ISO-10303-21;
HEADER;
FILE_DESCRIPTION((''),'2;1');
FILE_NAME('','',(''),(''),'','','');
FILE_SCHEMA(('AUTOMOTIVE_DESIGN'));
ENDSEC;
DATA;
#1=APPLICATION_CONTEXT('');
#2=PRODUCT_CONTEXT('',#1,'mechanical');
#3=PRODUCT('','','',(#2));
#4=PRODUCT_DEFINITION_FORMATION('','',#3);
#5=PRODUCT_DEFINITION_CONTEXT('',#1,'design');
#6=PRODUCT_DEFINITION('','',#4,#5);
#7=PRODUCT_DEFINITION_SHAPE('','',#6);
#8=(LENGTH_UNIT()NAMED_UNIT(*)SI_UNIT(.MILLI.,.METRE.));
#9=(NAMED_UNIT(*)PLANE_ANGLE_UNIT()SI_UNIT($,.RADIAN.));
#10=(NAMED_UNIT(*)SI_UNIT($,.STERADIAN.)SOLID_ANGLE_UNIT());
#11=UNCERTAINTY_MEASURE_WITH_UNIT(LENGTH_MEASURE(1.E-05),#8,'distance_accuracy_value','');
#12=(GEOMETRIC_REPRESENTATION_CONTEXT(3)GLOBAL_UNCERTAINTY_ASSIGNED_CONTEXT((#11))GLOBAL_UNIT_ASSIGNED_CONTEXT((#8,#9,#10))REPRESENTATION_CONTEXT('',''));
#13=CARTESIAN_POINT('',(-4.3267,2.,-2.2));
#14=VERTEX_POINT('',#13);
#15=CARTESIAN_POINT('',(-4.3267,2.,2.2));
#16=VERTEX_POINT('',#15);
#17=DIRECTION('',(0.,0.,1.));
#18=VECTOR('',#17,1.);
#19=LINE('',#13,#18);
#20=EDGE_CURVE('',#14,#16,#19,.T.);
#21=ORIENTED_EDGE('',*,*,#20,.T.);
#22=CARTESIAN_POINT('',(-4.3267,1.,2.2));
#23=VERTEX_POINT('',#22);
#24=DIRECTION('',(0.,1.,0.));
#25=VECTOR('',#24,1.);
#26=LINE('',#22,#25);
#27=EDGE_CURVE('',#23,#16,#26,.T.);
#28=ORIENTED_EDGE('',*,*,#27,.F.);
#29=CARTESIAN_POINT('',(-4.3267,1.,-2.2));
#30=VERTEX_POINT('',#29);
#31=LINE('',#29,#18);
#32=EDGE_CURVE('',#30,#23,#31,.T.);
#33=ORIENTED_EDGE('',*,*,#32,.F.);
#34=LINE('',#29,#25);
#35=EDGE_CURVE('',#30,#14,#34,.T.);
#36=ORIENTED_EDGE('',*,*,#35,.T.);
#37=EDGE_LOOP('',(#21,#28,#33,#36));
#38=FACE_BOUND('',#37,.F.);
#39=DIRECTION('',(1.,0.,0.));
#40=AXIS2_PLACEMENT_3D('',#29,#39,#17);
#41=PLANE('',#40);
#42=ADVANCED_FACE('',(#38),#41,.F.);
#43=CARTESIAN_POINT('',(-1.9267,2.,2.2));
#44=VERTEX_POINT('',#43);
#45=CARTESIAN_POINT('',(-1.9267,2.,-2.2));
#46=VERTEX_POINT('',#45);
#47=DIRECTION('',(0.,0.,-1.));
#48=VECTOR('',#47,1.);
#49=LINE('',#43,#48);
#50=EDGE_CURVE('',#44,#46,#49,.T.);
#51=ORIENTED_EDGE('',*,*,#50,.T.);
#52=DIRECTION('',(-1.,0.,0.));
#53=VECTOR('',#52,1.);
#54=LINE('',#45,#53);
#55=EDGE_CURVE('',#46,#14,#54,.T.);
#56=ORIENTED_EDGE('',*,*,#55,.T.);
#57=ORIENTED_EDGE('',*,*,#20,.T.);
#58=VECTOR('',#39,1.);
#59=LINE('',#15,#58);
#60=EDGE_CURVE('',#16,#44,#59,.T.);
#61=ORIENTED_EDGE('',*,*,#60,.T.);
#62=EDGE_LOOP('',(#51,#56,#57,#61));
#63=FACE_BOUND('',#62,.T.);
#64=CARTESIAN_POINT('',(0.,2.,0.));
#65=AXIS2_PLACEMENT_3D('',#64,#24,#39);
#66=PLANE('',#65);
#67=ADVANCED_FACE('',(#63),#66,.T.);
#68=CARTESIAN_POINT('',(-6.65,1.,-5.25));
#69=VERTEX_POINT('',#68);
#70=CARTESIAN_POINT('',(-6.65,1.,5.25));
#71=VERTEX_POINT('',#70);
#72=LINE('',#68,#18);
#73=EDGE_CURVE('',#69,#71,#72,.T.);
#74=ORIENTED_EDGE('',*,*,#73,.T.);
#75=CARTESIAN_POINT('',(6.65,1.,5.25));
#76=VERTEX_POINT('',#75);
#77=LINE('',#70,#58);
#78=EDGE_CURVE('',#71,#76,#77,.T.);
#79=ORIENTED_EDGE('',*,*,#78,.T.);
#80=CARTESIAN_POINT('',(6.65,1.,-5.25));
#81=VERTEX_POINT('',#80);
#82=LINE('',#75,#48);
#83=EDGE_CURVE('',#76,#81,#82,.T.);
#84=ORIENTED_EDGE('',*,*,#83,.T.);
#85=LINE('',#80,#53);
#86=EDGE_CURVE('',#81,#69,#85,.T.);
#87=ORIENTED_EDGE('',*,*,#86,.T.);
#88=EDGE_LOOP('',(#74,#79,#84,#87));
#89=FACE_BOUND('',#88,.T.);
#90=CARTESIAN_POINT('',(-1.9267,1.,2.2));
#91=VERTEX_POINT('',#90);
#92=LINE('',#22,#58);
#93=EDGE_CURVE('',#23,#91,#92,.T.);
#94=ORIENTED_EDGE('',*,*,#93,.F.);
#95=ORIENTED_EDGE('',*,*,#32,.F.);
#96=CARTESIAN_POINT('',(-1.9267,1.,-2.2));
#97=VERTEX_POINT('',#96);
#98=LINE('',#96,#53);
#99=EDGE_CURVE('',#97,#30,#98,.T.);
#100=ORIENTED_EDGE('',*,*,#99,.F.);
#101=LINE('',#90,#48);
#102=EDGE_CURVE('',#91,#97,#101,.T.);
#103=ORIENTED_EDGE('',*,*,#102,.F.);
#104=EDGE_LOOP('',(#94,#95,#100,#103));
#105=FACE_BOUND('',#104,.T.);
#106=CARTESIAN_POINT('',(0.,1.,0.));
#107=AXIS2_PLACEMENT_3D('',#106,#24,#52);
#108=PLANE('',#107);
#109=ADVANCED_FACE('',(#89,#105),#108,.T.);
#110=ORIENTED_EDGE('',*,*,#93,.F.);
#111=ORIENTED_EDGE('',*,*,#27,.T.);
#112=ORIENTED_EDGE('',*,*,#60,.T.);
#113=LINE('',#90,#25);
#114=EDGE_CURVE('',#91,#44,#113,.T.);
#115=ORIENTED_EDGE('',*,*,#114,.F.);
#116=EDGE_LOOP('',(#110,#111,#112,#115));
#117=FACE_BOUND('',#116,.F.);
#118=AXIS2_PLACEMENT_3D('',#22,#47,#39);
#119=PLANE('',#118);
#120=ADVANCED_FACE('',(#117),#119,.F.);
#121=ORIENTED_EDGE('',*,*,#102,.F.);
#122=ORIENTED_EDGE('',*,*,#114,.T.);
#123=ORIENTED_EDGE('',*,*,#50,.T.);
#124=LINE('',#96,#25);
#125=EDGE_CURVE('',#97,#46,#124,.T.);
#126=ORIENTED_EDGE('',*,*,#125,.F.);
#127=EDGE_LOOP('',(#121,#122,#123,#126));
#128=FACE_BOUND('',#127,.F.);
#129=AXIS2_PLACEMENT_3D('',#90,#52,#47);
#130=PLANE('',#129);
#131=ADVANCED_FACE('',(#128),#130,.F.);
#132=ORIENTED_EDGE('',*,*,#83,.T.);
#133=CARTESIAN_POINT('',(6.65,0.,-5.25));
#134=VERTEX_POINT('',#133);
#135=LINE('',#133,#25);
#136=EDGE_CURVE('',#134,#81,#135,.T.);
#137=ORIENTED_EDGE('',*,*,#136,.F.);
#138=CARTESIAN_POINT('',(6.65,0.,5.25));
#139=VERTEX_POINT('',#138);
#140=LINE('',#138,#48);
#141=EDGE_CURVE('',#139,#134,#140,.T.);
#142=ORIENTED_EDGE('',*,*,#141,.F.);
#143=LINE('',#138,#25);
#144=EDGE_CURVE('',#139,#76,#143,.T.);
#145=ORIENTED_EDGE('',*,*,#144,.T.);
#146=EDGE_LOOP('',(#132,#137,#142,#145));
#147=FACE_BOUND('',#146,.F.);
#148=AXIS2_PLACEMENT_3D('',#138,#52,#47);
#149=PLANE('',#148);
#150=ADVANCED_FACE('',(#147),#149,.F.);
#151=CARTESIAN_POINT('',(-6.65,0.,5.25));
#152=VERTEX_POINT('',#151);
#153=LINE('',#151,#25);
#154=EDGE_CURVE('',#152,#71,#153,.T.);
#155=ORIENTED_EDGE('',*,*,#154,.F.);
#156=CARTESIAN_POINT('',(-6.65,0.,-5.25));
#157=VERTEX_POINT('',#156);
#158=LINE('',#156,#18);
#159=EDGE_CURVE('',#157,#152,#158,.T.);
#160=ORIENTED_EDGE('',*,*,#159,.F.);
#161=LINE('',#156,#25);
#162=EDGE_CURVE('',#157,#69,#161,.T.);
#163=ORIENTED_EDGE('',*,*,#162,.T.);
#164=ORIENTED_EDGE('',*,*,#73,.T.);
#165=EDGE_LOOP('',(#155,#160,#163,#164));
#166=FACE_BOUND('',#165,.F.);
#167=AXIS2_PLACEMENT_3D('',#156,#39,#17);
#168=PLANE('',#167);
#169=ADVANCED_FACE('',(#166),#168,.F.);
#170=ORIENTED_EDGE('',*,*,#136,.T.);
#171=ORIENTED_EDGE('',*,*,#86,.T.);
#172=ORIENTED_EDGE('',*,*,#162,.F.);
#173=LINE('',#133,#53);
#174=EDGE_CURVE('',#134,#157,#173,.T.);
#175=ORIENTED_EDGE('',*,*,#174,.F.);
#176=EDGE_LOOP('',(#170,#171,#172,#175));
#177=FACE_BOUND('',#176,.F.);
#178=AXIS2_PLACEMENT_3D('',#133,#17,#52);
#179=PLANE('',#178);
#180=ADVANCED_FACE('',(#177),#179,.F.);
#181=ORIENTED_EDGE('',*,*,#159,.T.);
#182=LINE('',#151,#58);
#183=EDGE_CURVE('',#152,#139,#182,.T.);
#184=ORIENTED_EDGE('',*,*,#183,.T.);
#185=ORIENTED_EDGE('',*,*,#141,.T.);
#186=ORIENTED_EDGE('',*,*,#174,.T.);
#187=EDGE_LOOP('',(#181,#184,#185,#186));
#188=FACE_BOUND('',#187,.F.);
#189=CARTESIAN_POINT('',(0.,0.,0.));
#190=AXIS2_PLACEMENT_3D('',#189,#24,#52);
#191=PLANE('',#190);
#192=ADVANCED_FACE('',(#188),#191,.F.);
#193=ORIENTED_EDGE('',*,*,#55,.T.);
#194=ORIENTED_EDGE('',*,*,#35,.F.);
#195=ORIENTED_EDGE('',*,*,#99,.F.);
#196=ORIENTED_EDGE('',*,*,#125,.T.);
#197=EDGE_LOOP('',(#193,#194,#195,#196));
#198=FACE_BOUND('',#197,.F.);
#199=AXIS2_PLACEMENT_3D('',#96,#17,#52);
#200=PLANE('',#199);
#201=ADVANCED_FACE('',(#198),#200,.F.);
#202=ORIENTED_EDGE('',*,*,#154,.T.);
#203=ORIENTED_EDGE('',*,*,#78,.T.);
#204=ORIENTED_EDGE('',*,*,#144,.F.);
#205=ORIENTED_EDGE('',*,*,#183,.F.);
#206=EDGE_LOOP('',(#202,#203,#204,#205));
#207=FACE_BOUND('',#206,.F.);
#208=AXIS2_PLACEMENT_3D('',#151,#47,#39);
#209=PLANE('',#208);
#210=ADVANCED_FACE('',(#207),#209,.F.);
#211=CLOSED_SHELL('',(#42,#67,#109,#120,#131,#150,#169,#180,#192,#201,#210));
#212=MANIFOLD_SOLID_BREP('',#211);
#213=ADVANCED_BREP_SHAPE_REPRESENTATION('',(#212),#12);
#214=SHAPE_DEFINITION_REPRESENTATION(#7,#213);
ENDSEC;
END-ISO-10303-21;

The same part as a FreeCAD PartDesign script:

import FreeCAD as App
import Part
import Sketcher

V = App.Vector


def add_polygon(sketch, points):
    """Adds a closed chain of lines whose ends are joined by coincident constraints."""
    first, n = sketch.GeometryCount, len(points)
    for a, b in zip(points, points[1:] + points[:1]):
        sketch.addGeometry(Part.LineSegment(App.Vector(*a, 0), App.Vector(*b, 0)), False)
    for i in range(n):
        sketch.addConstraint(Sketcher.Constraint("Coincident", first + i, 2, first + (i + 1) % n, 1))

doc = App.newDocument("Part")
body = doc.addObject("PartDesign::Body", "Body")

sketch1 = doc.addObject("Sketcher::SketchObject", "Sketch")
body.addObject(sketch1)
sketch1.AttachmentSupport = (doc.XZ_Plane, [""])
sketch1.MapMode = "FlatFace"
add_polygon(sketch1, [(-6.65, -5.25), (-6.65, 5.25), (6.65, 5.25), (6.65, -5.25)])
sketch1.addConstraint(Sketcher.Constraint("Vertical", 0))
sketch1.addConstraint(Sketcher.Constraint("Horizontal", 1))
sketch1.addConstraint(Sketcher.Constraint("Vertical", 2))
sketch1.addConstraint(Sketcher.Constraint("Horizontal", 3))
sketch1.addConstraint(Sketcher.Constraint("Symmetric", 0, 2, 2, 2, -1, 1))
sketch1.addConstraint(Sketcher.Constraint("DistanceX", 1, 1, 1, 2, 13.3))
sketch1.addConstraint(Sketcher.Constraint("DistanceY", 0, 1, 0, 2, 10.5))
pad1 = doc.addObject("PartDesign::Pad", "Pad")
body.addObject(pad1)
pad1.Profile = sketch1
pad1.Length = 1
pad1.Reversed = True

sketch2 = doc.addObject("Sketcher::SketchObject", "Sketch001")
body.addObject(sketch2)
sketch2.AttachmentSupport = (doc.XZ_Plane, [""])
sketch2.MapMode = "FlatFace"
sketch2.AttachmentOffset = App.Placement(V(0, 0, -1), App.Rotation())
add_polygon(sketch2, [(-4.3267, -2.2), (-4.3267, 2.2), (-1.9267, 2.2), (-1.9267, -2.2)])
sketch2.addConstraint(Sketcher.Constraint("Vertical", 0))
sketch2.addConstraint(Sketcher.Constraint("Horizontal", 1))
sketch2.addConstraint(Sketcher.Constraint("Vertical", 2))
sketch2.addConstraint(Sketcher.Constraint("Horizontal", 3))
sketch2.addConstraint(Sketcher.Constraint("DistanceX", 1, 1, 1, 2, 2.4))
sketch2.addConstraint(Sketcher.Constraint("DistanceY", 0, 1, 0, 2, 4.4))
sketch2.addConstraint(Sketcher.Constraint("DistanceY", -1, 1, 0, 2, 2.2))
sketch2.addConstraint(Sketcher.Constraint("DistanceX", 0, 2, -1, 1, 4.3267))
pad2 = doc.addObject("PartDesign::Pad", "Pad001")
body.addObject(pad2)
pad2.Profile = sketch2
pad2.Length = 1
pad2.Reversed = True

doc.recompute()
